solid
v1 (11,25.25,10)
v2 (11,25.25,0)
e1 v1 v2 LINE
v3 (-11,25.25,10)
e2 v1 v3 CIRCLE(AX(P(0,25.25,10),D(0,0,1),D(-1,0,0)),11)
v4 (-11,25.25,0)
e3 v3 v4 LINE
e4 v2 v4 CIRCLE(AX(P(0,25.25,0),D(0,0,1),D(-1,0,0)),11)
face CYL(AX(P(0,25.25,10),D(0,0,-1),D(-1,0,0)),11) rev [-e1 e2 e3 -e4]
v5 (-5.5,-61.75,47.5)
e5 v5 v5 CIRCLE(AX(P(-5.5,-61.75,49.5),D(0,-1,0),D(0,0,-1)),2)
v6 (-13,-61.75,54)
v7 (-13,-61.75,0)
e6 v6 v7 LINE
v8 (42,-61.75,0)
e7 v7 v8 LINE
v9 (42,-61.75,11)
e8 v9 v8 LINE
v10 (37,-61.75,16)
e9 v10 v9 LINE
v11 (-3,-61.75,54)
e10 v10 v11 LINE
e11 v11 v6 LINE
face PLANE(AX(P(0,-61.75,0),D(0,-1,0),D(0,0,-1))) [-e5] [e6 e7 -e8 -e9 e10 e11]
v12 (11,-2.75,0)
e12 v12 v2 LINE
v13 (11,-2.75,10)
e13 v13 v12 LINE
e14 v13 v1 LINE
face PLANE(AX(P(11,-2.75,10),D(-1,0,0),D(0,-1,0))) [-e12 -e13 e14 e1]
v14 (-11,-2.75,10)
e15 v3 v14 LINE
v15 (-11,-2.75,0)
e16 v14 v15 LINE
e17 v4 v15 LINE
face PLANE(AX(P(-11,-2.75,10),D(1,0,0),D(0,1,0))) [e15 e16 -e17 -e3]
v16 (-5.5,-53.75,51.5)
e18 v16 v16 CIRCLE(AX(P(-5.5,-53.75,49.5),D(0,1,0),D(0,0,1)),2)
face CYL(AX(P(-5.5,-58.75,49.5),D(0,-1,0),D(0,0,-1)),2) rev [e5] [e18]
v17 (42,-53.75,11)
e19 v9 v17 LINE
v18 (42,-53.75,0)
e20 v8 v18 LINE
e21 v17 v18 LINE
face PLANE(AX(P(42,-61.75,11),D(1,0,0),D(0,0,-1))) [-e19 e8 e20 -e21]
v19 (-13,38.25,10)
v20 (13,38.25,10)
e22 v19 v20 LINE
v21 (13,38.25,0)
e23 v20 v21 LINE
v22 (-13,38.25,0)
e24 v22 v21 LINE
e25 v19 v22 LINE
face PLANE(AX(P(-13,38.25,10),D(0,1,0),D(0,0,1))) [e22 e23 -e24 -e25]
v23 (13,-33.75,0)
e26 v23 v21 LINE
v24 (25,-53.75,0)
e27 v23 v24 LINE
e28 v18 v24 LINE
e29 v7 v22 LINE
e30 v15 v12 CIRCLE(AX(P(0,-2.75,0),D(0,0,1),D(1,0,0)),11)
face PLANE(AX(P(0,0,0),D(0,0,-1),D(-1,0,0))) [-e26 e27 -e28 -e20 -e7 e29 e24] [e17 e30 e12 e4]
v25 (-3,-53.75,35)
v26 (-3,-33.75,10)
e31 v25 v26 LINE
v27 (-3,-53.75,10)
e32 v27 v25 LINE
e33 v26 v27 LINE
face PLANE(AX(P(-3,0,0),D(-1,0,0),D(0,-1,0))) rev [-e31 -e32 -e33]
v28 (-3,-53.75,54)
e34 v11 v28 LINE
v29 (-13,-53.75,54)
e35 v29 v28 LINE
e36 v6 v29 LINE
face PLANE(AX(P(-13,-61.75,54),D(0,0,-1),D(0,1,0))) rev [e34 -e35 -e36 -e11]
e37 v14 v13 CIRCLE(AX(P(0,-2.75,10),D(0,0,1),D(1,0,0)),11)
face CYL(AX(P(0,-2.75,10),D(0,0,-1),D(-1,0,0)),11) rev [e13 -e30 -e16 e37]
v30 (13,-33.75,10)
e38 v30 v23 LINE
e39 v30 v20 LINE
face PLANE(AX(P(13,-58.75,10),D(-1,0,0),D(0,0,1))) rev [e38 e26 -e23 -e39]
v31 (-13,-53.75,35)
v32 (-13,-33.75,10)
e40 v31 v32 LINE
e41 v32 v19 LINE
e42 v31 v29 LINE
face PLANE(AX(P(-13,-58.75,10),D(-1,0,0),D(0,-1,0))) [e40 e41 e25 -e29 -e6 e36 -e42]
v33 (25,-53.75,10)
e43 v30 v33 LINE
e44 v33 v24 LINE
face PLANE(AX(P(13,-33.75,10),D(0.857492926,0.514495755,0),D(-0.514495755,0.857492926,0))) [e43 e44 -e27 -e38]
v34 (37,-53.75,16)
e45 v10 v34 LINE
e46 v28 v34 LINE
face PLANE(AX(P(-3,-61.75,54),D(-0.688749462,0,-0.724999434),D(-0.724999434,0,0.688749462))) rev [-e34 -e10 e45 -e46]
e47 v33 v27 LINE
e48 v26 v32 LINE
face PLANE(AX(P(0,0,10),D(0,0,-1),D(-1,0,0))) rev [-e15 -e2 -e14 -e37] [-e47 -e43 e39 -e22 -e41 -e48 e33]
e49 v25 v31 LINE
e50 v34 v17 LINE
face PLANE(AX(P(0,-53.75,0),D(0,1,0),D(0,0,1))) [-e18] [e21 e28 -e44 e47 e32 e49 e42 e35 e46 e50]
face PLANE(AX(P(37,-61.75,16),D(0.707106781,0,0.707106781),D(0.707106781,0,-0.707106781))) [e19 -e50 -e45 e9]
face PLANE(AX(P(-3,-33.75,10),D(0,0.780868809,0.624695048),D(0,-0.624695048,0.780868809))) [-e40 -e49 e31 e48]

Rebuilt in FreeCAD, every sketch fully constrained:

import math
import FreeCAD as App
import Part
import Sketcher
from FreeCAD import Vector
Q = App.Units.Quantity


def add_polygon(sketch, points):
    """Adds a closed chain of lines whose ends are joined by coincident constraints."""
    first, n = sketch.GeometryCount, len(points)
    for a, b in zip(points, points[1:] + points[:1]):
        sketch.addGeometry(Part.LineSegment(App.Vector(*a, 0), App.Vector(*b, 0)), False)
    for i in range(n):
        sketch.addConstraint(Sketcher.Constraint("Coincident", first + i, 2, first + (i + 1) % n, 1))

doc = App.newDocument("Part")
params = doc.addObject("Spreadsheet::Sheet", "Params")
for row, (alias, value) in enumerate([
    ("sketch1_width", "26 mm"),
    ("sketch1_height", "97 mm"),
    ("pad1_length", "10 mm"),
    ("sketch2_radius", "11 mm"),
    ("sketch2_height", "28 mm"),
    ("pocket1_length", "10 mm"),
    ("sketch3_width", "50 mm"),
    ("sketch3_width2", "10 mm"),
    ("sketch3_height", "16 mm"),
    ("sketch3_height2", "54 mm"),
    ("pad2_length", "3 mm"),
    ("sketch4_diameter", "4 mm"),
    ("pocket2_length", "3 mm"),
    ("sketch5_width", "10 mm"),
    ("sketch5_width2", "24 mm"),
    ("sketch5_width3", "26 mm"),
    ("sketch5_height", "44 mm"),
    ("sketch5_height2", "16 mm"),
    ("pad3_length", "5 mm"),
    ("sketch6_diameter", "4 mm"),
    ("pocket3_length", "10 mm"),
    ("sketch7_width", "12 mm"),
    ("sketch7_height", "20 mm"),
    ("pad4_length", "10 mm"),
    ("sketch8_width", "20 mm"),
    ("sketch8_height", "25 mm"),
    ("pad5_length", "10 mm"),
    ("sketch9_width", "5 mm"),
    ("sketch9_height", "16 mm"),
    ("sketch9_height2", "11 mm"),
    ("pad6_length", "8 mm"),
], start=1):
    params.set(f"A{row}", alias)
    params.set(f"B{row}", "=" + value)
    params.setAlias(f"B{row}", alias)

body = doc.addObject("PartDesign::Body", "Body")

# Sketch on XY plane
sketch1 = doc.addObject("Sketcher::SketchObject", "Sketch")
body.addObject(sketch1)
sketch1.AttachmentSupport = (doc.XY_Plane, [""])
sketch1.MapMode = "FlatFace"
add_polygon(sketch1, [(-13, 38), (-13, -59), (13, -59), (13, 38)])  # lines 0-3
sketch1.addConstraint(Sketcher.Constraint("Vertical", 0))
sketch1.addConstraint(Sketcher.Constraint("Horizontal", 1))
sketch1.addConstraint(Sketcher.Constraint("Vertical", 2))
sketch1.addConstraint(Sketcher.Constraint("Horizontal", 3))
sketch1.addConstraint(Sketcher.Constraint("DistanceX", 1, 1, 1, 2, Q("26 mm")))
sketch1.addConstraint(Sketcher.Constraint("DistanceY", 0, 2, 0, 1, Q("97 mm")))
sketch1.addConstraint(Sketcher.Constraint("DistanceX", 0, 2, -1, 1, Q("13 mm")))
sketch1.addConstraint(Sketcher.Constraint("DistanceY", 0, 2, -1, 1, Q("58.75 mm")))
sketch1.setExpression("Constraints[8]", "Params.sketch1_width")
sketch1.setExpression("Constraints[9]", "Params.sketch1_height")
pad1 = doc.addObject("PartDesign::Pad", "Pad")
body.addObject(pad1)
pad1.Profile = sketch1
pad1.setExpression("Length", "Params.pad1_length")

# Sketch on XY plane
sketch2 = doc.addObject("Sketcher::SketchObject", "Sketch001")
body.addObject(sketch2)
sketch2.AttachmentSupport = (doc.XY_Plane, [""])
sketch2.MapMode = "FlatFace"
sketch2.addGeometry(Part.LineSegment(Vector(-11, 25, 0), Vector(-11, -3, 0)), False)
sketch2.addGeometry(Part.ArcOfCircle(Part.Circle(Vector(0, -3, 0), Vector(0, 0, 1), 11), math.radians(180), math.radians(360)), False)
sketch2.addGeometry(Part.LineSegment(Vector(11, -3, 0), Vector(11, 25, 0)), False)
sketch2.addGeometry(Part.ArcOfCircle(Part.Circle(Vector(0, 25, 0), Vector(0, 0, 1), 11), math.radians(0), math.radians(180)), False)
sketch2.addConstraint(Sketcher.Constraint("Tangent", 0, 2, 1, 1))
sketch2.addConstraint(Sketcher.Constraint("Tangent", 1, 2, 2, 1))
sketch2.addConstraint(Sketcher.Constraint("Tangent", 2, 2, 3, 1))
sketch2.addConstraint(Sketcher.Constraint("Tangent", 3, 2, 0, 1))
sketch2.addConstraint(Sketcher.Constraint("Vertical", 0))
sketch2.addConstraint(Sketcher.Constraint("Vertical", 2))
sketch2.addConstraint(Sketcher.Constraint("PointOnObject", 1, 3, -2))
sketch2.addConstraint(Sketcher.Constraint("Radius", 1, Q("11 mm")))
sketch2.addConstraint(Sketcher.Constraint("DistanceY", 0, 2, 0, 1, Q("28 mm")))
sketch2.addConstraint(Sketcher.Constraint("DistanceY", 1, 3, -1, 1, Q("2.75 mm")))
sketch2.setExpression("Constraints[7]", "Params.sketch2_radius")
sketch2.setExpression("Constraints[8]", "Params.sketch2_height")
pocket1 = doc.addObject("PartDesign::Pocket", "Pocket")
body.addObject(pocket1)
pocket1.Profile = sketch2
pocket1.setExpression("Length", "Params.pocket1_length")
pocket1.Reversed = True

# Sketch on XZ plane
sketch3 = doc.addObject("Sketcher::SketchObject", "Sketch002")
body.addObject(sketch3)
sketch3.AttachmentSupport = (doc.XZ_Plane, [""])
sketch3.MapMode = "FlatFace"
sketch3.AttachmentOffset = App.Placement(Vector(0, 0, 58.75), App.Rotation())
add_polygon(sketch3, [(-13, 0), (37, 0), (37, 16), (-3, 54), (-13, 54)])  # lines 0-4
sketch3.addConstraint(Sketcher.Constraint("Horizontal", 0))
sketch3.addConstraint(Sketcher.Constraint("Vertical", 1))
sketch3.addConstraint(Sketcher.Constraint("Horizontal", 3))
sketch3.addConstraint(Sketcher.Constraint("Vertical", 4))
sketch3.addConstraint(Sketcher.Constraint("PointOnObject", 0, 2, -1))
sketch3.addConstraint(Sketcher.Constraint("DistanceX", 0, 1, 0, 2, Q("50 mm")))
sketch3.addConstraint(Sketcher.Constraint("DistanceX", 3, 2, 3, 1, Q("10 mm")))
sketch3.addConstraint(Sketcher.Constraint("DistanceY", 1, 1, 1, 2, Q("16 mm")))
sketch3.addConstraint(Sketcher.Constraint("DistanceY", 4, 2, 4, 1, Q("54 mm")))
sketch3.addConstraint(Sketcher.Constraint("DistanceX", -1, 1, 0, 2, Q("37 mm")))
sketch3.setExpression("Constraints[10]", "Params.sketch3_width")
sketch3.setExpression("Constraints[11]", "Params.sketch3_width2")
sketch3.setExpression("Constraints[12]", "Params.sketch3_height")
sketch3.setExpression("Constraints[13]", "Params.sketch3_height2")
pad2 = doc.addObject("PartDesign::Pad", "Pad001")
body.addObject(pad2)
pad2.Profile = sketch3
pad2.setExpression("Length", "Params.pad2_length")

# Sketch on XZ plane
sketch4 = doc.addObject("Sketcher::SketchObject", "Sketch003")
body.addObject(sketch4)
sketch4.AttachmentSupport = (doc.XZ_Plane, [""])
sketch4.MapMode = "FlatFace"
sketch4.AttachmentOffset = App.Placement(Vector(0, 0, 61.75), App.Rotation())
sketch4.addGeometry(Part.Circle(Vector(-5.5, 49.5, 0), Vector(0, 0, 1), 2), False)
sketch4.addConstraint(Sketcher.Constraint("Diameter", 0, Q("4 mm")))
sketch4.addConstraint(Sketcher.Constraint("DistanceX", 0, 3, -1, 1, Q("5.5 mm")))
sketch4.addConstraint(Sketcher.Constraint("DistanceY", -1, 1, 0, 3, Q("49.5 mm")))
sketch4.setExpression("Constraints[0]", "Params.sketch4_diameter")
pocket2 = doc.addObject("PartDesign::Pocket", "Pocket001")
body.addObject(pocket2)
pocket2.Profile = sketch4
pocket2.setExpression("Length", "Params.pocket2_length")

# Sketch on XZ plane
sketch5 = doc.addObject("Sketcher::SketchObject", "Sketch004")
body.addObject(sketch5)
sketch5.AttachmentSupport = (doc.XZ_Plane, [""])
sketch5.MapMode = "FlatFace"
sketch5.AttachmentOffset = App.Placement(Vector(0, 0, 58.75), App.Rotation())
add_polygon(sketch5, [(-13, 10), (-13, 54), (-3, 54), (37, 16), (37, 0), (13, 0), (13, 10)])  # lines 0-6
sketch5.addConstraint(Sketcher.Constraint("Vertical", 0))
sketch5.addConstraint(Sketcher.Constraint("Horizontal", 1))
sketch5.addConstraint(Sketcher.Constraint("Vertical", 3))
sketch5.addConstraint(Sketcher.Constraint("Horizontal", 4))
sketch5.addConstraint(Sketcher.Constraint("Vertical", 5))
sketch5.addConstraint(Sketcher.Constraint("Horizontal", 6))
sketch5.addConstraint(Sketcher.Constraint("PointOnObject", 3, 2, -1))
sketch5.addConstraint(Sketcher.Constraint("Equal", 1, 5))
sketch5.addConstraint(Sketcher.Constraint("DistanceX", 1, 1, 1, 2, Q("10 mm")))
sketch5.addConstraint(Sketcher.Constraint("DistanceX", 4, 2, 4, 1, Q("24 mm")))
sketch5.addConstraint(Sketcher.Constraint("DistanceX", 6, 2, 6, 1, Q("26 mm")))
sketch5.addConstraint(Sketcher.Constraint("DistanceY", 0, 1, 0, 2, Q("44 mm")))
sketch5.addConstraint(Sketcher.Constraint("DistanceY", 3, 2, 3, 1, Q("16 mm")))
sketch5.addConstraint(Sketcher.Constraint("DistanceX", 0, 2, -1, 1, Q("13 mm")))
sketch5.setExpression("Constraints[15]", "Params.sketch5_width")
sketch5.setExpression("Constraints[16]", "Params.sketch5_width2")
sketch5.setExpression("Constraints[17]", "Params.sketch5_width3")
sketch5.setExpression("Constraints[18]", "Params.sketch5_height")
sketch5.setExpression("Constraints[19]", "Params.sketch5_height2")
pad3 = doc.addObject("PartDesign::Pad", "Pad002")
body.addObject(pad3)
pad3.Profile = sketch5
pad3.setExpression("Length", "Params.pad3_length")
pad3.Reversed = True

# Sketch on XZ plane
sketch6 = doc.addObject("Sketcher::SketchObject", "Sketch005")
body.addObject(sketch6)
sketch6.AttachmentSupport = (doc.XZ_Plane, [""])
sketch6.MapMode = "FlatFace"
sketch6.AttachmentOffset = App.Placement(Vector(0, 0, 63.75), App.Rotation())
sketch6.addGeometry(Part.Circle(Vector(-5.5, 49.5, 0), Vector(0, 0, 1), 2), False)
sketch6.addConstraint(Sketcher.Constraint("Diameter", 0, Q("4 mm")))
sketch6.addConstraint(Sketcher.Constraint("DistanceX", 0, 3, -1, 1, Q("5.5 mm")))
sketch6.addConstraint(Sketcher.Constraint("DistanceY", -1, 1, 0, 3, Q("49.5 mm")))
sketch6.setExpression("Constraints[0]", "Params.sketch6_diameter")
pocket3 = doc.addObject("PartDesign::Pocket", "Pocket002")
body.addObject(pocket3)
pocket3.Profile = sketch6
pocket3.setExpression("Length", "Params.pocket3_length")

# Sketch on XY plane
sketch7 = doc.addObject("Sketcher::SketchObject", "Sketch006")
body.addObject(sketch7)
sketch7.AttachmentSupport = (doc.XY_Plane, [""])
sketch7.MapMode = "FlatFace"
add_polygon(sketch7, [(13, -54), (13, -34), (25, -54)])  # lines 0-2
sketch7.addConstraint(Sketcher.Constraint("Vertical", 0))
sketch7.addConstraint(Sketcher.Constraint("Horizontal", 2))
sketch7.addConstraint(Sketcher.Constraint("DistanceX", 2, 2, 2, 1, Q("12 mm")))
sketch7.addConstraint(Sketcher.Constraint("DistanceY", 0, 1, 0, 2, Q("20 mm")))
sketch7.addConstraint(Sketcher.Constraint("DistanceX", -1, 1, 0, 2, Q("13 mm")))
sketch7.addConstraint(Sketcher.Constraint("DistanceY", 0, 2, -1, 1, Q("33.75 mm")))
sketch7.setExpression("Constraints[5]", "Params.sketch7_width")
sketch7.setExpression("Constraints[6]", "Params.sketch7_height")
pad4 = doc.addObject("PartDesign::Pad", "Pad003")
body.addObject(pad4)
pad4.Profile = sketch7
pad4.setExpression("Length", "Params.pad4_length")

# Sketch on YZ plane
sketch8 = doc.addObject("Sketcher::SketchObject", "Sketch007")
body.addObject(sketch8)
sketch8.AttachmentSupport = (doc.YZ_Plane, [""])
sketch8.MapMode = "FlatFace"
sketch8.AttachmentOffset = App.Placement(Vector(0, 0, -13), App.Rotation())
add_polygon(sketch8, [(-54, 10), (-54, 35), (-34, 10)])  # lines 0-2
sketch8.addConstraint(Sketcher.Constraint("Vertical", 0))
sketch8.addConstraint(Sketcher.Constraint("Horizontal", 2))
sketch8.addConstraint(Sketcher.Constraint("DistanceX", 2, 2, 2, 1, Q("20 mm")))
sketch8.addConstraint(Sketcher.Constraint("DistanceY", 0, 1, 0, 2, Q("25 mm")))
sketch8.addConstraint(Sketcher.Constraint("DistanceY", -1, 1, 0, 2, Q("35 mm")))
sketch8.addConstraint(Sketcher.Constraint("DistanceX", 0, 2, -1, 1, Q("53.75 mm")))
sketch8.setExpression("Constraints[5]", "Params.sketch8_width")
sketch8.setExpression("Constraints[6]", "Params.sketch8_height")
pad5 = doc.addObject("PartDesign::Pad", "Pad004")
body.addObject(pad5)
pad5.Profile = sketch8
pad5.setExpression("Length", "Params.pad5_length")

# Sketch on XZ plane
sketch9 = doc.addObject("Sketcher::SketchObject", "Sketch008")
body.addObject(sketch9)
sketch9.AttachmentSupport = (doc.XZ_Plane, [""])
sketch9.MapMode = "FlatFace"
sketch9.AttachmentOffset = App.Placement(Vector(0, 0, 53.75), App.Rotation())
add_polygon(sketch9, [(42, 0), (37, 0), (37, 16), (42, 11)])  # lines 0-3
sketch9.addConstraint(Sketcher.Constraint("Horizontal", 0))
sketch9.addConstraint(Sketcher.Constraint("Vertical", 1))
sketch9.addConstraint(Sketcher.Constraint("Vertical", 3))
sketch9.addConstraint(Sketcher.Constraint("PointOnObject", 0, 2, -1))
sketch9.addConstraint(Sketcher.Constraint("DistanceX", 0, 2, 0, 1, Q("5 mm")))
sketch9.addConstraint(Sketcher.Constraint("DistanceY", 1, 1, 1, 2, Q("16 mm")))
sketch9.addConstraint(Sketcher.Constraint("DistanceY", 3, 2, 3, 1, Q("11 mm")))
sketch9.addConstraint(Sketcher.Constraint("DistanceX", -1, 1, 0, 2, Q("37 mm")))
sketch9.setExpression("Constraints[8]", "Params.sketch9_width")
sketch9.setExpression("Constraints[9]", "Params.sketch9_height")
sketch9.setExpression("Constraints[10]", "Params.sketch9_height2")
pad6 = doc.addObject("PartDesign::Pad", "Pad005")
body.addObject(pad6)
pad6.Profile = sketch9
pad6.setExpression("Length", "Params.pad6_length")

doc.recompute()
